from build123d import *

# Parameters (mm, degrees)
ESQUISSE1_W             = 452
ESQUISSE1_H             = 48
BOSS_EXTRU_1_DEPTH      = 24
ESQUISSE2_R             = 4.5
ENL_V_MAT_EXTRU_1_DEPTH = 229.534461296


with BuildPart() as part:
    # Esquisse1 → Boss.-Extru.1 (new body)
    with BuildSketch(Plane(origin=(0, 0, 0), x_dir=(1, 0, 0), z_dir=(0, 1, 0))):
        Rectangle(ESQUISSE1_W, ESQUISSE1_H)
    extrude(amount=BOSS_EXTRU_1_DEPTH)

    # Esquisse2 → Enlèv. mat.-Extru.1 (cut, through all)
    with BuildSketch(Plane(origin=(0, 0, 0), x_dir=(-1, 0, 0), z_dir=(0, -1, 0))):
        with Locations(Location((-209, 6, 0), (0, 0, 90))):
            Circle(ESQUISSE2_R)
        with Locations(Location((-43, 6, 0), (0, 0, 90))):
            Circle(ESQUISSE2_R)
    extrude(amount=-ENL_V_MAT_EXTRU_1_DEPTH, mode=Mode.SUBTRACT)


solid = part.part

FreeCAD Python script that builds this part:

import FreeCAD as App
import Part
import Sketcher
from FreeCAD import Vector
Q = App.Units.Quantity


def add_polygon(sketch, points):
    """Adds a closed chain of lines whose ends are joined by coincident constraints."""
    first, n = sketch.GeometryCount, len(points)
    for a, b in zip(points, points[1:] + points[:1]):
        sketch.addGeometry(Part.LineSegment(App.Vector(*a, 0), App.Vector(*b, 0)), False)
    for i in range(n):
        sketch.addConstraint(Sketcher.Constraint("Coincident", first + i, 2, first + (i + 1) % n, 1))

doc = App.newDocument("Part")
body = doc.addObject("PartDesign::Body", "Body")

# Sketch on XZ plane
sketch1 = body.newObject("Sketcher::SketchObject", "Sketch")
sketch1.AttachmentSupport = (doc.getObject("XZ_Plane"), [""])
sketch1.MapMode = "FlatFace"
add_polygon(sketch1, [(-226, -24), (-226, 24), (226, 24), (226, -24)])  # lines 0-3
sketch1.addConstraint([
    Sketcher.Constraint("Vertical", 0),
    Sketcher.Constraint("Horizontal", 1),
    Sketcher.Constraint("Vertical", 2),
    Sketcher.Constraint("Horizontal", 3),
    Sketcher.Constraint("Symmetric", 0, 2, 2, 2, -1, 1),
    Sketcher.Constraint("DistanceX", 1, 1, 1, 2, Q("452 mm")),
    Sketcher.Constraint("DistanceY", 0, 1, 0, 2, Q("48 mm")),
])
pad1 = body.newObject("PartDesign::Pad", "Pad")
pad1.Profile = sketch1
pad1.Length = 24
pad1.Reversed = True

# Sketch on XZ plane
sketch2 = body.newObject("Sketcher::SketchObject", "Sketch001")
sketch2.AttachmentSupport = (doc.getObject("XZ_Plane"), [""])
sketch2.MapMode = "FlatFace"
sketch2.addGeometry([
    Part.Circle(Vector(209, -6, 0), Vector(0, 0, 1), 4.5),
    Part.Circle(Vector(43, -6, 0), Vector(0, 0, 1), 4.5),
], False)
sketch2.addConstraint([
    Sketcher.Constraint("Equal", 0, 1),
    Sketcher.Constraint("Horizontal", 0, 3, 1, 3),
    Sketcher.Constraint("Diameter", 0, Q("9 mm")),
    Sketcher.Constraint("DistanceX", -1, 1, 0, 3, Q("209 mm")),
    Sketcher.Constraint("DistanceY", 0, 3, -1, 1, Q("6 mm")),
    Sketcher.Constraint("DistanceX", -1, 1, 1, 3, Q("43 mm")),
])
pocket1 = body.newObject("PartDesign::Pocket", "Pocket")
pocket1.Profile = sketch2
pocket1.Type = "ThroughAll"

doc.recompute()
